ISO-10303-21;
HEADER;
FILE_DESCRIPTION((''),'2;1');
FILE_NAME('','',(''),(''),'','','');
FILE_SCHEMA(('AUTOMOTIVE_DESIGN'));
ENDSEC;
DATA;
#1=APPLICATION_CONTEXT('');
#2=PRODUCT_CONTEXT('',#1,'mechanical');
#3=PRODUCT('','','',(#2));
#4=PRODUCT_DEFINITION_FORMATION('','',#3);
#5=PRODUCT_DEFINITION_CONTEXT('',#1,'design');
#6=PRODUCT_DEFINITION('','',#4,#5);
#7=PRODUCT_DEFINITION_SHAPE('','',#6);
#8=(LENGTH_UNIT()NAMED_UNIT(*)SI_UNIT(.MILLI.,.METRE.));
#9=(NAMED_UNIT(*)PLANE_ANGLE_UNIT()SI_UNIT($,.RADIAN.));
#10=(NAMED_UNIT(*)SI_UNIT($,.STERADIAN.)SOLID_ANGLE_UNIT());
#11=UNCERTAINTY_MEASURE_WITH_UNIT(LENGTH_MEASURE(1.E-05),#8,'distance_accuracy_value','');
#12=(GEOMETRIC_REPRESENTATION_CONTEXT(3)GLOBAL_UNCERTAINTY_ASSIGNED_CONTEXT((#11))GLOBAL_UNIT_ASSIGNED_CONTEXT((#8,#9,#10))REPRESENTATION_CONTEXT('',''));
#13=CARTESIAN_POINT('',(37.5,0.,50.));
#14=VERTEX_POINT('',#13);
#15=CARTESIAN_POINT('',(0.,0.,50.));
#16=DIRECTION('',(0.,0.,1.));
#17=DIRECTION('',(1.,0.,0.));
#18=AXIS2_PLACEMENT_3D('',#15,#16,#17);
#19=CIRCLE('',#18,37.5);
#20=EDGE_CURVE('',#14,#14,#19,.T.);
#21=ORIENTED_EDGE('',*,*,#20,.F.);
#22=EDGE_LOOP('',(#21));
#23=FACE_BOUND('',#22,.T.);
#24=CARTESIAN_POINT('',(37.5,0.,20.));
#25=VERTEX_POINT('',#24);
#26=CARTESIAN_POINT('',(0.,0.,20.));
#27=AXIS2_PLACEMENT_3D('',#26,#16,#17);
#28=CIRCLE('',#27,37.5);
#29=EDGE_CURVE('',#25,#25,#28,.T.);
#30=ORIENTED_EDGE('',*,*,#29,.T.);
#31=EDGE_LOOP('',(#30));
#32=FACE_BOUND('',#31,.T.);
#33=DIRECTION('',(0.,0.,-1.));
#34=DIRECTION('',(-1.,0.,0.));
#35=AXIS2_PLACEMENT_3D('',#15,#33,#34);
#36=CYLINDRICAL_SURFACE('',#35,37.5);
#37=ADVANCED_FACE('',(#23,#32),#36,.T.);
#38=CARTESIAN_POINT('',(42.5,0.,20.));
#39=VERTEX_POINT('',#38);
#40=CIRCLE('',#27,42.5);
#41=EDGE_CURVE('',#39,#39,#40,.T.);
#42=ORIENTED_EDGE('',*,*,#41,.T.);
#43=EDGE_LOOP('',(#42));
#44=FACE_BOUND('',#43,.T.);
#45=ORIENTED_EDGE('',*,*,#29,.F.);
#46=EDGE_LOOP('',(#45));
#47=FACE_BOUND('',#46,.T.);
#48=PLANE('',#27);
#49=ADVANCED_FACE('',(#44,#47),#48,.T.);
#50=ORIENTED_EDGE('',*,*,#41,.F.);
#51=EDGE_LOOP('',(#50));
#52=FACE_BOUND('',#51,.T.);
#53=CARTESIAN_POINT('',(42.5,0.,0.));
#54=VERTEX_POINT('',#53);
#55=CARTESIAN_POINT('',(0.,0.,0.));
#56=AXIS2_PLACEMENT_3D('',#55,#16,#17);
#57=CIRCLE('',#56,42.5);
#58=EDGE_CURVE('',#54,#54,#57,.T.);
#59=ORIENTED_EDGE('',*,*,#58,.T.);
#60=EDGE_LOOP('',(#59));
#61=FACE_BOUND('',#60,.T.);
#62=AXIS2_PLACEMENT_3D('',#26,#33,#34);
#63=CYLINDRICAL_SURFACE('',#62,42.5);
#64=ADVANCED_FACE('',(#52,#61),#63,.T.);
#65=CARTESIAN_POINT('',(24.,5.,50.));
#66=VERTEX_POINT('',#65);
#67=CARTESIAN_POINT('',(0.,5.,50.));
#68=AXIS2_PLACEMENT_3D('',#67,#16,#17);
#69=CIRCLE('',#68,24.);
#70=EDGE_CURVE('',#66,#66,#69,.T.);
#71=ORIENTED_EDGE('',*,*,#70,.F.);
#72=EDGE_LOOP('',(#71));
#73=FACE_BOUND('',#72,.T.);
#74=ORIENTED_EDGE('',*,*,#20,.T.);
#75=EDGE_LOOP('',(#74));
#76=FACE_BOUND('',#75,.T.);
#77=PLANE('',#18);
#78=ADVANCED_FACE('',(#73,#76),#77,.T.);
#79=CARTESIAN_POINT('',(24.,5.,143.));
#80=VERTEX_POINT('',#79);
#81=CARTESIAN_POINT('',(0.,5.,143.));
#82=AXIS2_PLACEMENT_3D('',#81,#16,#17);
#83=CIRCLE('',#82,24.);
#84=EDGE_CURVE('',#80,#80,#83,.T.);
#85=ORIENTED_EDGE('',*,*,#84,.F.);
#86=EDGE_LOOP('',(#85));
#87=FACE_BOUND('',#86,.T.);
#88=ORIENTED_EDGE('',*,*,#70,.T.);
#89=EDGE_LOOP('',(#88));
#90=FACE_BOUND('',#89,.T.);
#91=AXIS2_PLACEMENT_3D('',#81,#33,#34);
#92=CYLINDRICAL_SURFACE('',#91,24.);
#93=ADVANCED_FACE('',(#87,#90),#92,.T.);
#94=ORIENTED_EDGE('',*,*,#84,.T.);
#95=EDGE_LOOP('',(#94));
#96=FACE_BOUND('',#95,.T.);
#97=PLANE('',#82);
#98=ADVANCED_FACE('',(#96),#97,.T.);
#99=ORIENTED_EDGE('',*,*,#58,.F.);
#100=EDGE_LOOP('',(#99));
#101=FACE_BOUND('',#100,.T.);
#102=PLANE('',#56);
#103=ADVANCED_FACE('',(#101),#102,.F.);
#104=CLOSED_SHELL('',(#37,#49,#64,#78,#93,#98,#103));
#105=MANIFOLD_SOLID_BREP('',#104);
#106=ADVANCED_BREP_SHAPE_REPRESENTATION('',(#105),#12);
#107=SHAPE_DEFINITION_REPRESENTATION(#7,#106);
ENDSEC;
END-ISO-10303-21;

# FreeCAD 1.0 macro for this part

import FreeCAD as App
import Part
import Sketcher

doc = App.newDocument("Part")
params = doc.addObject("Spreadsheet::Sheet", "Params")
for row, (alias, value) in enumerate([
    ("sketch1_diameter", "85 mm"),
    ("pad1_length", "20 mm"),
    ("sketch2_diameter", "75 mm"),
    ("pad2_length", "30 mm"),
    ("sketch3_diameter", "48 mm"),
    ("pad3_length", "93 mm"),
], start=1):
    params.set(f"A{row}", alias)
    params.set(f"B{row}", "=" + value)
    params.setAlias(f"B{row}", alias)

body = doc.addObject("PartDesign::Body", "Body")

# Sketch on XY plane
sketch1 = body.newObject("Sketcher::SketchObject", "Sketch")
sketch1.AttachmentSupport = (doc.getObject("XY_Plane"), [""])
sketch1.MapMode = "FlatFace"
sketch1.addGeometry(Part.Circle(App.Vector(0, 0, 0), App.Vector(0, 0, 1), 42), False)
sketch1.addConstraint(Sketcher.Constraint("Coincident", 0, 3, -1, 1))
sketch1.addConstraint(Sketcher.Constraint("Diameter", 0, 85.0))
sketch1.setExpression("Constraints[1]", "Params.sketch1_diameter")
pad1 = body.newObject("PartDesign::Pad", "Pad")
pad1.Profile = sketch1
pad1.setExpression("Length", "Params.pad1_length")

# Sketch on XY plane
sketch2 = body.newObject("Sketcher::SketchObject", "Sketch001")
sketch2.AttachmentSupport = (doc.getObject("XY_Plane"), [""])
sketch2.MapMode = "FlatFace"
sketch2.AttachmentOffset = App.Placement(App.Vector(0, 0, 20), App.Rotation())
sketch2.addGeometry(Part.Circle(App.Vector(0, 0, 0), App.Vector(0, 0, 1), 38), False)
sketch2.addConstraint(Sketcher.Constraint("Coincident", 0, 3, -1, 1))
sketch2.addConstraint(Sketcher.Constraint("Diameter", 0, 75.0))
sketch2.setExpression("Constraints[1]", "Params.sketch2_diameter")
pad2 = body.newObject("PartDesign::Pad", "Pad001")
pad2.Profile = sketch2
pad2.setExpression("Length", "Params.pad2_length")

# Sketch on XY plane
sketch3 = body.newObject("Sketcher::SketchObject", "Sketch002")
sketch3.AttachmentSupport = (doc.getObject("XY_Plane"), [""])
sketch3.MapMode = "FlatFace"
sketch3.AttachmentOffset = App.Placement(App.Vector(0, 0, 50), App.Rotation())
sketch3.addGeometry(Part.Circle(App.Vector(0, 5, 0), App.Vector(0, 0, 1), 24), False)
sketch3.addConstraint(Sketcher.Constraint("PointOnObject", 0, 3, -2))
sketch3.addConstraint(Sketcher.Constraint("Diameter", 0, 48.0))
sketch3.addConstraint(Sketcher.Constraint("DistanceY", -1, 1, 0, 3, 5.0))
sketch3.setExpression("Constraints[1]", "Params.sketch3_diameter")
pad3 = body.newObject("PartDesign::Pad", "Pad002")
pad3.Profile = sketch3
pad3.setExpression("Length", "Params.pad3_length")

doc.recompute()
